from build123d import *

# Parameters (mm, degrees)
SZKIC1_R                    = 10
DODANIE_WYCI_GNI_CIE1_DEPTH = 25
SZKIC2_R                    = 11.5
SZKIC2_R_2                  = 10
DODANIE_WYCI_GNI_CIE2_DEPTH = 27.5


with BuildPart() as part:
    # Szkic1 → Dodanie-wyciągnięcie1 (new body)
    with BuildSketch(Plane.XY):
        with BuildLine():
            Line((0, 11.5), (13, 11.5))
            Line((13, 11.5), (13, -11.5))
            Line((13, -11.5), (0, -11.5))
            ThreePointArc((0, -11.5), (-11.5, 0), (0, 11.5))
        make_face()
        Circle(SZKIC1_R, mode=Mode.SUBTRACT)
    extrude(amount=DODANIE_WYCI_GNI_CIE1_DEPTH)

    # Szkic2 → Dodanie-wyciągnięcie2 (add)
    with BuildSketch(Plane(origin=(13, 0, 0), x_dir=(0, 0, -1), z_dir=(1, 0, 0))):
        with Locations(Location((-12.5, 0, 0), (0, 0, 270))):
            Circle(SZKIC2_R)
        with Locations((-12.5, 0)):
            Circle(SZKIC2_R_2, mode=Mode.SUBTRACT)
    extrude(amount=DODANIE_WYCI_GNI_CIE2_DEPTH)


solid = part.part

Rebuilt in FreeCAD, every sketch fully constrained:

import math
import FreeCAD as App
import Part
import Sketcher

doc = App.newDocument("Part")
body = doc.addObject("PartDesign::Body", "Body")

sketch1 = body.newObject("Sketcher::SketchObject", "Sketch")
sketch1.AttachmentSupport = (doc.getObject("XY_Plane"), [""])
sketch1.MapMode = "FlatFace"
sketch1.addGeometry([
    Part.LineSegment(App.Vector(13, 12, 0), App.Vector(0, 12, 0)),
    Part.ArcOfCircle(Part.Circle(App.Vector(0, 0, 0), App.Vector(0, 0, 1), 12), math.radians(90), math.radians(270)),
    Part.LineSegment(App.Vector(0, -12, 0), App.Vector(13, -12, 0)),
    Part.LineSegment(App.Vector(13, -12, 0), App.Vector(13, 12, 0)),
    Part.Circle(App.Vector(0, 0, 0), App.Vector(0, 0, 1), 10),
], False)
sketch1.addConstraint([
    Sketcher.Constraint("Tangent", 0, 2, 1, 1),
    Sketcher.Constraint("Tangent", 1, 2, 2, 1),
    Sketcher.Constraint("Coincident", 2, 2, 3, 1),
    Sketcher.Constraint("Coincident", 3, 2, 0, 1),
    Sketcher.Constraint("Horizontal", 0),
    Sketcher.Constraint("Horizontal", 2),
    Sketcher.Constraint("Vertical", 3),
    Sketcher.Constraint("Coincident", 1, 3, -1, 1),
    Sketcher.Constraint("Coincident", 4, 3, -1, 1),
    Sketcher.Constraint("Diameter", 4, 20.0),
    Sketcher.Constraint("Radius", 1, 11.5),
    Sketcher.Constraint("DistanceX", 0, 2, 0, 1, 13.0),
])
pad1 = body.newObject("PartDesign::Pad", "Pad")
pad1.Profile = sketch1
pad1.Length = 25

sketch2 = body.newObject("Sketcher::SketchObject", "Sketch001")
sketch2.AttachmentSupport = (doc.getObject("YZ_Plane"), [""])
sketch2.MapMode = "FlatFace"
sketch2.AttachmentOffset = App.Placement(App.Vector(0, 0, 13), App.Rotation())
sketch2.addGeometry([
    Part.Circle(App.Vector(0, 12, 0), App.Vector(0, 0, 1), 12),
    Part.Circle(App.Vector(0, 12, 0), App.Vector(0, 0, 1), 10),
], False)
sketch2.addConstraint([
    Sketcher.Constraint("Coincident", 1, 3, 0, 3),
    Sketcher.Constraint("PointOnObject", 0, 3, -2),
    Sketcher.Constraint("Diameter", 0, 23.0),
    Sketcher.Constraint("Diameter", 1, 20.0),
    Sketcher.Constraint("DistanceY", -1, 1, 0, 3, 12.5),
])
pad2 = body.newObject("PartDesign::Pad", "Pad001")
pad2.Profile = sketch2
pad2.Length = 27.5

doc.recompute()
